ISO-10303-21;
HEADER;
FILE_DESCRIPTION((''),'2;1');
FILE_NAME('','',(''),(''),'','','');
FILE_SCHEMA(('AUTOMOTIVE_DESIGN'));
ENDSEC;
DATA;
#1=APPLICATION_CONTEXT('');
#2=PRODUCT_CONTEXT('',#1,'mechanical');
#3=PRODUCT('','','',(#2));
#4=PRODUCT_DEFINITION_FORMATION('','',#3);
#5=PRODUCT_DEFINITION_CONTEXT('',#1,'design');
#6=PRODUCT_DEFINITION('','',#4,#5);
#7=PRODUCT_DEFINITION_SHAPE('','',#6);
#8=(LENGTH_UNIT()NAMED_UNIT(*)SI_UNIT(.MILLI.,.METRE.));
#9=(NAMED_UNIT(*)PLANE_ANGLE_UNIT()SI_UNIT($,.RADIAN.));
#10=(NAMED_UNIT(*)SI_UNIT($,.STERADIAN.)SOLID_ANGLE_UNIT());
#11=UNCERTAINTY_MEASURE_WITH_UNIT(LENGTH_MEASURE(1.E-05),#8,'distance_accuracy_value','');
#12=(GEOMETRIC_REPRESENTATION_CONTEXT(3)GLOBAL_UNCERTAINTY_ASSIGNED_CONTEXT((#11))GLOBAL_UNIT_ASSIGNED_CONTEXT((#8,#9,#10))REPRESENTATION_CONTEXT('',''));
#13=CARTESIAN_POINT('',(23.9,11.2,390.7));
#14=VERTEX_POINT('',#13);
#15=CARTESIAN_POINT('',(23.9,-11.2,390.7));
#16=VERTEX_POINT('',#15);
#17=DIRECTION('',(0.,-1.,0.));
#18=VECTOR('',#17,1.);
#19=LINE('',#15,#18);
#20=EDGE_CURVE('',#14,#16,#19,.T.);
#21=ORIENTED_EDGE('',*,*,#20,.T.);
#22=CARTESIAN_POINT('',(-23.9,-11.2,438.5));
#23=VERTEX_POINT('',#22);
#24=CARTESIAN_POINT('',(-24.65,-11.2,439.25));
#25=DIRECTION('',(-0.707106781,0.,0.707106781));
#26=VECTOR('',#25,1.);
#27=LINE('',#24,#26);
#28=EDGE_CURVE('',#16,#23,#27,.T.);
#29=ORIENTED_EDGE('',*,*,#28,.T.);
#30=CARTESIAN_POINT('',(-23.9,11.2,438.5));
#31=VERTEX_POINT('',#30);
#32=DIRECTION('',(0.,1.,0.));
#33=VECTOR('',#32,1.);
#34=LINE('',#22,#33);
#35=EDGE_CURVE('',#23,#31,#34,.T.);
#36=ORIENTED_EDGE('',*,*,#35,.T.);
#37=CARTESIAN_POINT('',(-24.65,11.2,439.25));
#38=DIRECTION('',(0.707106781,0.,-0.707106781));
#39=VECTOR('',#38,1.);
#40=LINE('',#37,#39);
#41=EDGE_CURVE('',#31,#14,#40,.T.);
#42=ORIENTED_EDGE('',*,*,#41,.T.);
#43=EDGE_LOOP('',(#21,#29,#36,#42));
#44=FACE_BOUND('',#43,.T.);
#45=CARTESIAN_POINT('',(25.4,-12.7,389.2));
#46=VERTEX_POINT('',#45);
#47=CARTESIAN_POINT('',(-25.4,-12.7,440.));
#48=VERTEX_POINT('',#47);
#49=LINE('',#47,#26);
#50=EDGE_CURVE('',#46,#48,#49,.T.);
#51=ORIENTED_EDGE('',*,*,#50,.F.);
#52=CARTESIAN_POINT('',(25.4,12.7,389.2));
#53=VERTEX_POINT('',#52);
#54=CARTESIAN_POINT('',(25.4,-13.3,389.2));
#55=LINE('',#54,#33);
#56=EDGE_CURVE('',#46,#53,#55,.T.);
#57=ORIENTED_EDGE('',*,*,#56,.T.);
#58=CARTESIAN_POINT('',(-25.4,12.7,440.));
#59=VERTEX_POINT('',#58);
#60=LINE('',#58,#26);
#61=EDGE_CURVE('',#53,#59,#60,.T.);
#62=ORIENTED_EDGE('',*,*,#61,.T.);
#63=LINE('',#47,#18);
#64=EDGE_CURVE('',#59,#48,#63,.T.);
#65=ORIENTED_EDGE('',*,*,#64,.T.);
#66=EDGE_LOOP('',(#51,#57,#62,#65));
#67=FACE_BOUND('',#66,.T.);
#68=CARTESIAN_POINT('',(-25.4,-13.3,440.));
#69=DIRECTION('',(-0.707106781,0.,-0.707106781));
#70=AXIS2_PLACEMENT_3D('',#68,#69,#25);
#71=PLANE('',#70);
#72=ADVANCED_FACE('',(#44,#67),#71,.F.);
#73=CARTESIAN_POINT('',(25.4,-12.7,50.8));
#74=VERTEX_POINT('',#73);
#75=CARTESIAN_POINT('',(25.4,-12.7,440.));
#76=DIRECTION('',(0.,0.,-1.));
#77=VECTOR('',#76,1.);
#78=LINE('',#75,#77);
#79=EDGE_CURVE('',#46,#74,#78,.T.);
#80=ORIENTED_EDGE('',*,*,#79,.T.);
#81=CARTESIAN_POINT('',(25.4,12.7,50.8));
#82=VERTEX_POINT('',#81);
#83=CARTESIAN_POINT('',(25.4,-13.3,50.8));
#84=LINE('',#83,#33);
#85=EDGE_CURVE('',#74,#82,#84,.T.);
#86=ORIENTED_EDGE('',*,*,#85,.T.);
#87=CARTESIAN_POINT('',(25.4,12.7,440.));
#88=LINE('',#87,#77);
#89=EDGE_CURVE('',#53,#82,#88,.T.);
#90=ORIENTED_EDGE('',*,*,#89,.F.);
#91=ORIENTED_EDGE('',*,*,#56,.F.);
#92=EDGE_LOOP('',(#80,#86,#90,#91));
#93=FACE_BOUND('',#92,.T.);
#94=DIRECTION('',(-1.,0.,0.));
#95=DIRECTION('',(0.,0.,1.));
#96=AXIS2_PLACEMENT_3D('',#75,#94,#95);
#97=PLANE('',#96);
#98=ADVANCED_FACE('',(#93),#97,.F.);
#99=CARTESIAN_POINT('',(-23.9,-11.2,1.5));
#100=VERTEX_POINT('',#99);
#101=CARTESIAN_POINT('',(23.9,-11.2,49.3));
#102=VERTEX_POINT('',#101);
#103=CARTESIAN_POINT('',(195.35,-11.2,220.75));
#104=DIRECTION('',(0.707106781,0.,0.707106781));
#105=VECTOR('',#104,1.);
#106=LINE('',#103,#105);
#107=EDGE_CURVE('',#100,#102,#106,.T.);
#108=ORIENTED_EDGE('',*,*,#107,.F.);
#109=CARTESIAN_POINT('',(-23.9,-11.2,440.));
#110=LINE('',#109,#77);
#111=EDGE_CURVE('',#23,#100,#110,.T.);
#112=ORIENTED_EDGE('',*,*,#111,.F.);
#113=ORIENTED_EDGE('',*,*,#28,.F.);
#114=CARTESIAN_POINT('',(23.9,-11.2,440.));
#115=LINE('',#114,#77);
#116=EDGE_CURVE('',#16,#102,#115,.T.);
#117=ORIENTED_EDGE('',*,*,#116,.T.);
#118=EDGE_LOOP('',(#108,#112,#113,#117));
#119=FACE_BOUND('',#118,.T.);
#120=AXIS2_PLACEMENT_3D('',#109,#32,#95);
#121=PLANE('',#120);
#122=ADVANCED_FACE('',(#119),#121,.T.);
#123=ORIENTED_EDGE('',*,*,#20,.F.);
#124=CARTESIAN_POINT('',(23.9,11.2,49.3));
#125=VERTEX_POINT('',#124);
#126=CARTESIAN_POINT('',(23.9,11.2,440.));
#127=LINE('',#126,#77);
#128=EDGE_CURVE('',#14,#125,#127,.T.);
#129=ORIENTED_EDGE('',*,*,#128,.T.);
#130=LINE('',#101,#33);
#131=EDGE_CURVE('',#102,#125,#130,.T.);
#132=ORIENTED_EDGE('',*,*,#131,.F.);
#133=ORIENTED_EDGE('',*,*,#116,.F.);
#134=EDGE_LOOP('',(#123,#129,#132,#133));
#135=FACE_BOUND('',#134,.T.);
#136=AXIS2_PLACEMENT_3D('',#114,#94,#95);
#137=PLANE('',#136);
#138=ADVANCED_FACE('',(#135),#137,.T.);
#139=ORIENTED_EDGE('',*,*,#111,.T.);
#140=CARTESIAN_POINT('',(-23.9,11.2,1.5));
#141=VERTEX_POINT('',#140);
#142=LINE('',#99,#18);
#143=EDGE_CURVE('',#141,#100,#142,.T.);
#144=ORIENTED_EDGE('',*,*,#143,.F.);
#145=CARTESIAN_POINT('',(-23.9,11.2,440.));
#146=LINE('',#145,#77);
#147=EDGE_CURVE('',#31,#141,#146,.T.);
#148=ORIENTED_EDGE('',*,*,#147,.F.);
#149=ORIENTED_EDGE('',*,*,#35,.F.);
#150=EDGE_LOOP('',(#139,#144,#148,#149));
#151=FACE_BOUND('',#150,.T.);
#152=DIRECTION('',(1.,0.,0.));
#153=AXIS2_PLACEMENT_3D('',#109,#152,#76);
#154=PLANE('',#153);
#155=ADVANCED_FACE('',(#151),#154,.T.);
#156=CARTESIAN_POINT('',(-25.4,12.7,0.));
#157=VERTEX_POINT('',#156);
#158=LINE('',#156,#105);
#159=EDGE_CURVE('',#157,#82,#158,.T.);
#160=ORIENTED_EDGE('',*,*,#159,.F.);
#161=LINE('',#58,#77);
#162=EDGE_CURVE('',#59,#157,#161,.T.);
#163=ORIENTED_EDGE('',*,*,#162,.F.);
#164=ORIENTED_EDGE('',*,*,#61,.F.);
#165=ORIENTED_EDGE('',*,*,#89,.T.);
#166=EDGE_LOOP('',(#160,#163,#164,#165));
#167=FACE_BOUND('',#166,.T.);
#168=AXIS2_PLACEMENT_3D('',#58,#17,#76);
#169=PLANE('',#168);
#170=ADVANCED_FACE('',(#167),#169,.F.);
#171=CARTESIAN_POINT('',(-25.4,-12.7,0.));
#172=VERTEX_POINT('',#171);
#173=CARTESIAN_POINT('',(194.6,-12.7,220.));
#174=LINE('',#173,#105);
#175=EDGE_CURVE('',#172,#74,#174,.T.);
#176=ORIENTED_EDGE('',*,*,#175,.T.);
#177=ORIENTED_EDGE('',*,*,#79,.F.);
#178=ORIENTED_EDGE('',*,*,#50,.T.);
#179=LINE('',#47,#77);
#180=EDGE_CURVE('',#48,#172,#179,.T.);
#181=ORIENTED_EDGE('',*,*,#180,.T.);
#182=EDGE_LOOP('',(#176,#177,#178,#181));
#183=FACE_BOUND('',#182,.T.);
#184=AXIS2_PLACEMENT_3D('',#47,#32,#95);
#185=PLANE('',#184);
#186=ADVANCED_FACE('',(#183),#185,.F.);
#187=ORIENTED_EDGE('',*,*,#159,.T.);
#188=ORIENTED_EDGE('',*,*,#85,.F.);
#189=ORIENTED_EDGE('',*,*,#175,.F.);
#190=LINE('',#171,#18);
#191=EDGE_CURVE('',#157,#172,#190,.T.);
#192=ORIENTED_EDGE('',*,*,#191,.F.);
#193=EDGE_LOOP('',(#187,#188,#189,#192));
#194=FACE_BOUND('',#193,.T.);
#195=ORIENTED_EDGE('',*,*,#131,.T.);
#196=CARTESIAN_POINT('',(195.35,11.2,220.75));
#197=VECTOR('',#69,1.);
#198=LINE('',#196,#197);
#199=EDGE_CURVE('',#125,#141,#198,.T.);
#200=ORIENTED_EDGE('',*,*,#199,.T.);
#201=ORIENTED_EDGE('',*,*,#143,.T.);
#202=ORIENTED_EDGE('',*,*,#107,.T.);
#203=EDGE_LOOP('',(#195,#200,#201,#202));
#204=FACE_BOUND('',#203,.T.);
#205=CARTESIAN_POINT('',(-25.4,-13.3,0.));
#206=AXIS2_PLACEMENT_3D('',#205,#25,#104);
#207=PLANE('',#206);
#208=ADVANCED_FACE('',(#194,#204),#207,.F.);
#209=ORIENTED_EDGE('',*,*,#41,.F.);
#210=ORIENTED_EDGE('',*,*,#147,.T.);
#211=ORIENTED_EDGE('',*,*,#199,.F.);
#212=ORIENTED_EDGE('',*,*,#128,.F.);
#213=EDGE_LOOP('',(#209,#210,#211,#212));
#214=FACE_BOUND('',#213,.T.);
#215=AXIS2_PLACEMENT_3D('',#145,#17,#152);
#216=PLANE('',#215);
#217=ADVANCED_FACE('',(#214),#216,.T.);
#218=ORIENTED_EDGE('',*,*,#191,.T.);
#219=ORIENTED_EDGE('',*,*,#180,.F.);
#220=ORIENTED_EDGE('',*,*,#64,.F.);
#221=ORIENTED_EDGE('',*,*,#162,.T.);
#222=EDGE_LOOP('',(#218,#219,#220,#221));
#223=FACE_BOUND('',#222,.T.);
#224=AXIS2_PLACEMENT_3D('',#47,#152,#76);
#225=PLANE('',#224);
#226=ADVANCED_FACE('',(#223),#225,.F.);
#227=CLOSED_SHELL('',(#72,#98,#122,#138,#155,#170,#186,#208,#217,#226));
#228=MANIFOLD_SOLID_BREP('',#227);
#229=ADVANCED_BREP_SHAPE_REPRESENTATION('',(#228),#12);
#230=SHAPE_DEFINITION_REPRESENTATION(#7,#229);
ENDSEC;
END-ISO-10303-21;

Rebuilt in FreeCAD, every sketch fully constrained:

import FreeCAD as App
import Part
import Sketcher

V = App.Vector

doc = App.newDocument("Part")
body = doc.addObject("PartDesign::Body", "Body")

# Sketch on XY plane
sketch1 = doc.addObject("Sketcher::SketchObject", "Sketch")
body.addObject(sketch1)
sketch1.AttachmentSupport = (doc.XY_Plane, [""])
sketch1.MapMode = "FlatFace"
sketch1.addGeometry(Part.LineSegment(V(-25, 13, 0), V(-25, -13, 0)), False)
sketch1.addGeometry(Part.LineSegment(V(-25, -13, 0), V(25, -13, 0)), False)
sketch1.addGeometry(Part.LineSegment(V(25, -13, 0), V(25, 13, 0)), False)
sketch1.addGeometry(Part.LineSegment(V(25, 13, 0), V(-25, 13, 0)), False)
sketch1.addGeometry(Part.LineSegment(V(24, -11, 0), V(-24, -11, 0)), False)
sketch1.addGeometry(Part.LineSegment(V(-24, -11, 0), V(-24, 11, 0)), False)
sketch1.addGeometry(Part.LineSegment(V(-24, 11, 0), V(24, 11, 0)), False)
sketch1.addGeometry(Part.LineSegment(V(24, 11, 0), V(24, -11, 0)), False)
sketch1.addConstraint(Sketcher.Constraint("Coincident", 0, 2, 1, 1))
sketch1.addConstraint(Sketcher.Constraint("Coincident", 1, 2, 2, 1))
sketch1.addConstraint(Sketcher.Constraint("Coincident", 2, 2, 3, 1))
sketch1.addConstraint(Sketcher.Constraint("Coincident", 3, 2, 0, 1))
sketch1.addConstraint(Sketcher.Constraint("Coincident", 4, 2, 5, 1))
sketch1.addConstraint(Sketcher.Constraint("Coincident", 5, 2, 6, 1))
sketch1.addConstraint(Sketcher.Constraint("Coincident", 6, 2, 7, 1))
sketch1.addConstraint(Sketcher.Constraint("Coincident", 7, 2, 4, 1))
sketch1.addConstraint(Sketcher.Constraint("Vertical", 0))
sketch1.addConstraint(Sketcher.Constraint("Horizontal", 1))
sketch1.addConstraint(Sketcher.Constraint("Vertical", 2))
sketch1.addConstraint(Sketcher.Constraint("Horizontal", 3))
sketch1.addConstraint(Sketcher.Constraint("Horizontal", 4))
sketch1.addConstraint(Sketcher.Constraint("Vertical", 5))
sketch1.addConstraint(Sketcher.Constraint("Horizontal", 6))
sketch1.addConstraint(Sketcher.Constraint("Vertical", 7))
sketch1.addConstraint(Sketcher.Constraint("Symmetric", 0, 2, 2, 2, -1, 1))
sketch1.addConstraint(Sketcher.Constraint("Symmetric", 4, 2, 6, 2, -1, 1))
sketch1.addConstraint(Sketcher.Constraint("DistanceX", 1, 1, 1, 2, 50.8))
sketch1.addConstraint(Sketcher.Constraint("DistanceX", 4, 2, 4, 1, 47.8))
sketch1.addConstraint(Sketcher.Constraint("DistanceY", 0, 2, 0, 1, 25.4))
sketch1.addConstraint(Sketcher.Constraint("DistanceY", 5, 1, 5, 2, 22.4))
pad1 = doc.addObject("PartDesign::Pad", "Pad")
body.addObject(pad1)
pad1.Profile = sketch1
pad1.Length = 440

# Sketch on XZ plane
sketch2 = doc.addObject("Sketcher::SketchObject", "Sketch001")
body.addObject(sketch2)
sketch2.AttachmentSupport = (doc.XZ_Plane, [""])
sketch2.MapMode = "FlatFace"
sketch2.AttachmentOffset = App.Placement(V(0, 0, -12.7), App.Rotation())
sketch2.addGeometry(Part.LineSegment(V(-25, 0, 0), V(25, 51, 0)), False)
sketch2.addGeometry(Part.LineSegment(V(25, 51, 0), V(25, 0, 0)), False)
sketch2.addGeometry(Part.LineSegment(V(25, 0, 0), V(-25, 0, 0)), False)
sketch2.addGeometry(Part.LineSegment(V(25, 440, 0), V(25, 389, 0)), False)
sketch2.addGeometry(Part.LineSegment(V(25, 389, 0), V(-25, 440, 0)), False)
sketch2.addGeometry(Part.LineSegment(V(-25, 440, 0), V(25, 440, 0)), False)
sketch2.addConstraint(Sketcher.Constraint("Coincident", 0, 2, 1, 1))
sketch2.addConstraint(Sketcher.Constraint("Coincident", 1, 2, 2, 1))
sketch2.addConstraint(Sketcher.Constraint("Coincident", 2, 2, 0, 1))
sketch2.addConstraint(Sketcher.Constraint("Coincident", 3, 2, 4, 1))
sketch2.addConstraint(Sketcher.Constraint("Coincident", 4, 2, 5, 1))
sketch2.addConstraint(Sketcher.Constraint("Coincident", 5, 2, 3, 1))
sketch2.addConstraint(Sketcher.Constraint("Vertical", 1))
sketch2.addConstraint(Sketcher.Constraint("Horizontal", 2))
sketch2.addConstraint(Sketcher.Constraint("Vertical", 3))
sketch2.addConstraint(Sketcher.Constraint("Horizontal", 5))
sketch2.addConstraint(Sketcher.Constraint("Symmetric", 1, 2, 2, 2, -1, 1))
sketch2.addConstraint(Sketcher.Constraint("Perpendicular", 0, 4))
sketch2.addConstraint(Sketcher.Constraint("Vertical", 1, 2, 3, 2))
sketch2.addConstraint(Sketcher.Constraint("Vertical", 2, 2, 4, 2))
sketch2.addConstraint(Sketcher.Constraint("Equal", 5, 1))
sketch2.addConstraint(Sketcher.Constraint("DistanceX", 2, 2, 2, 1, 50.8))
sketch2.addConstraint(Sketcher.Constraint("DistanceY", -1, 1, 4, 2, 440.0))
pocket1 = doc.addObject("PartDesign::Pocket", "Pocket")
body.addObject(pocket1)
pocket1.Profile = sketch2
pocket1.Length = 26
pocket1.Reversed = True

doc.recompute()
